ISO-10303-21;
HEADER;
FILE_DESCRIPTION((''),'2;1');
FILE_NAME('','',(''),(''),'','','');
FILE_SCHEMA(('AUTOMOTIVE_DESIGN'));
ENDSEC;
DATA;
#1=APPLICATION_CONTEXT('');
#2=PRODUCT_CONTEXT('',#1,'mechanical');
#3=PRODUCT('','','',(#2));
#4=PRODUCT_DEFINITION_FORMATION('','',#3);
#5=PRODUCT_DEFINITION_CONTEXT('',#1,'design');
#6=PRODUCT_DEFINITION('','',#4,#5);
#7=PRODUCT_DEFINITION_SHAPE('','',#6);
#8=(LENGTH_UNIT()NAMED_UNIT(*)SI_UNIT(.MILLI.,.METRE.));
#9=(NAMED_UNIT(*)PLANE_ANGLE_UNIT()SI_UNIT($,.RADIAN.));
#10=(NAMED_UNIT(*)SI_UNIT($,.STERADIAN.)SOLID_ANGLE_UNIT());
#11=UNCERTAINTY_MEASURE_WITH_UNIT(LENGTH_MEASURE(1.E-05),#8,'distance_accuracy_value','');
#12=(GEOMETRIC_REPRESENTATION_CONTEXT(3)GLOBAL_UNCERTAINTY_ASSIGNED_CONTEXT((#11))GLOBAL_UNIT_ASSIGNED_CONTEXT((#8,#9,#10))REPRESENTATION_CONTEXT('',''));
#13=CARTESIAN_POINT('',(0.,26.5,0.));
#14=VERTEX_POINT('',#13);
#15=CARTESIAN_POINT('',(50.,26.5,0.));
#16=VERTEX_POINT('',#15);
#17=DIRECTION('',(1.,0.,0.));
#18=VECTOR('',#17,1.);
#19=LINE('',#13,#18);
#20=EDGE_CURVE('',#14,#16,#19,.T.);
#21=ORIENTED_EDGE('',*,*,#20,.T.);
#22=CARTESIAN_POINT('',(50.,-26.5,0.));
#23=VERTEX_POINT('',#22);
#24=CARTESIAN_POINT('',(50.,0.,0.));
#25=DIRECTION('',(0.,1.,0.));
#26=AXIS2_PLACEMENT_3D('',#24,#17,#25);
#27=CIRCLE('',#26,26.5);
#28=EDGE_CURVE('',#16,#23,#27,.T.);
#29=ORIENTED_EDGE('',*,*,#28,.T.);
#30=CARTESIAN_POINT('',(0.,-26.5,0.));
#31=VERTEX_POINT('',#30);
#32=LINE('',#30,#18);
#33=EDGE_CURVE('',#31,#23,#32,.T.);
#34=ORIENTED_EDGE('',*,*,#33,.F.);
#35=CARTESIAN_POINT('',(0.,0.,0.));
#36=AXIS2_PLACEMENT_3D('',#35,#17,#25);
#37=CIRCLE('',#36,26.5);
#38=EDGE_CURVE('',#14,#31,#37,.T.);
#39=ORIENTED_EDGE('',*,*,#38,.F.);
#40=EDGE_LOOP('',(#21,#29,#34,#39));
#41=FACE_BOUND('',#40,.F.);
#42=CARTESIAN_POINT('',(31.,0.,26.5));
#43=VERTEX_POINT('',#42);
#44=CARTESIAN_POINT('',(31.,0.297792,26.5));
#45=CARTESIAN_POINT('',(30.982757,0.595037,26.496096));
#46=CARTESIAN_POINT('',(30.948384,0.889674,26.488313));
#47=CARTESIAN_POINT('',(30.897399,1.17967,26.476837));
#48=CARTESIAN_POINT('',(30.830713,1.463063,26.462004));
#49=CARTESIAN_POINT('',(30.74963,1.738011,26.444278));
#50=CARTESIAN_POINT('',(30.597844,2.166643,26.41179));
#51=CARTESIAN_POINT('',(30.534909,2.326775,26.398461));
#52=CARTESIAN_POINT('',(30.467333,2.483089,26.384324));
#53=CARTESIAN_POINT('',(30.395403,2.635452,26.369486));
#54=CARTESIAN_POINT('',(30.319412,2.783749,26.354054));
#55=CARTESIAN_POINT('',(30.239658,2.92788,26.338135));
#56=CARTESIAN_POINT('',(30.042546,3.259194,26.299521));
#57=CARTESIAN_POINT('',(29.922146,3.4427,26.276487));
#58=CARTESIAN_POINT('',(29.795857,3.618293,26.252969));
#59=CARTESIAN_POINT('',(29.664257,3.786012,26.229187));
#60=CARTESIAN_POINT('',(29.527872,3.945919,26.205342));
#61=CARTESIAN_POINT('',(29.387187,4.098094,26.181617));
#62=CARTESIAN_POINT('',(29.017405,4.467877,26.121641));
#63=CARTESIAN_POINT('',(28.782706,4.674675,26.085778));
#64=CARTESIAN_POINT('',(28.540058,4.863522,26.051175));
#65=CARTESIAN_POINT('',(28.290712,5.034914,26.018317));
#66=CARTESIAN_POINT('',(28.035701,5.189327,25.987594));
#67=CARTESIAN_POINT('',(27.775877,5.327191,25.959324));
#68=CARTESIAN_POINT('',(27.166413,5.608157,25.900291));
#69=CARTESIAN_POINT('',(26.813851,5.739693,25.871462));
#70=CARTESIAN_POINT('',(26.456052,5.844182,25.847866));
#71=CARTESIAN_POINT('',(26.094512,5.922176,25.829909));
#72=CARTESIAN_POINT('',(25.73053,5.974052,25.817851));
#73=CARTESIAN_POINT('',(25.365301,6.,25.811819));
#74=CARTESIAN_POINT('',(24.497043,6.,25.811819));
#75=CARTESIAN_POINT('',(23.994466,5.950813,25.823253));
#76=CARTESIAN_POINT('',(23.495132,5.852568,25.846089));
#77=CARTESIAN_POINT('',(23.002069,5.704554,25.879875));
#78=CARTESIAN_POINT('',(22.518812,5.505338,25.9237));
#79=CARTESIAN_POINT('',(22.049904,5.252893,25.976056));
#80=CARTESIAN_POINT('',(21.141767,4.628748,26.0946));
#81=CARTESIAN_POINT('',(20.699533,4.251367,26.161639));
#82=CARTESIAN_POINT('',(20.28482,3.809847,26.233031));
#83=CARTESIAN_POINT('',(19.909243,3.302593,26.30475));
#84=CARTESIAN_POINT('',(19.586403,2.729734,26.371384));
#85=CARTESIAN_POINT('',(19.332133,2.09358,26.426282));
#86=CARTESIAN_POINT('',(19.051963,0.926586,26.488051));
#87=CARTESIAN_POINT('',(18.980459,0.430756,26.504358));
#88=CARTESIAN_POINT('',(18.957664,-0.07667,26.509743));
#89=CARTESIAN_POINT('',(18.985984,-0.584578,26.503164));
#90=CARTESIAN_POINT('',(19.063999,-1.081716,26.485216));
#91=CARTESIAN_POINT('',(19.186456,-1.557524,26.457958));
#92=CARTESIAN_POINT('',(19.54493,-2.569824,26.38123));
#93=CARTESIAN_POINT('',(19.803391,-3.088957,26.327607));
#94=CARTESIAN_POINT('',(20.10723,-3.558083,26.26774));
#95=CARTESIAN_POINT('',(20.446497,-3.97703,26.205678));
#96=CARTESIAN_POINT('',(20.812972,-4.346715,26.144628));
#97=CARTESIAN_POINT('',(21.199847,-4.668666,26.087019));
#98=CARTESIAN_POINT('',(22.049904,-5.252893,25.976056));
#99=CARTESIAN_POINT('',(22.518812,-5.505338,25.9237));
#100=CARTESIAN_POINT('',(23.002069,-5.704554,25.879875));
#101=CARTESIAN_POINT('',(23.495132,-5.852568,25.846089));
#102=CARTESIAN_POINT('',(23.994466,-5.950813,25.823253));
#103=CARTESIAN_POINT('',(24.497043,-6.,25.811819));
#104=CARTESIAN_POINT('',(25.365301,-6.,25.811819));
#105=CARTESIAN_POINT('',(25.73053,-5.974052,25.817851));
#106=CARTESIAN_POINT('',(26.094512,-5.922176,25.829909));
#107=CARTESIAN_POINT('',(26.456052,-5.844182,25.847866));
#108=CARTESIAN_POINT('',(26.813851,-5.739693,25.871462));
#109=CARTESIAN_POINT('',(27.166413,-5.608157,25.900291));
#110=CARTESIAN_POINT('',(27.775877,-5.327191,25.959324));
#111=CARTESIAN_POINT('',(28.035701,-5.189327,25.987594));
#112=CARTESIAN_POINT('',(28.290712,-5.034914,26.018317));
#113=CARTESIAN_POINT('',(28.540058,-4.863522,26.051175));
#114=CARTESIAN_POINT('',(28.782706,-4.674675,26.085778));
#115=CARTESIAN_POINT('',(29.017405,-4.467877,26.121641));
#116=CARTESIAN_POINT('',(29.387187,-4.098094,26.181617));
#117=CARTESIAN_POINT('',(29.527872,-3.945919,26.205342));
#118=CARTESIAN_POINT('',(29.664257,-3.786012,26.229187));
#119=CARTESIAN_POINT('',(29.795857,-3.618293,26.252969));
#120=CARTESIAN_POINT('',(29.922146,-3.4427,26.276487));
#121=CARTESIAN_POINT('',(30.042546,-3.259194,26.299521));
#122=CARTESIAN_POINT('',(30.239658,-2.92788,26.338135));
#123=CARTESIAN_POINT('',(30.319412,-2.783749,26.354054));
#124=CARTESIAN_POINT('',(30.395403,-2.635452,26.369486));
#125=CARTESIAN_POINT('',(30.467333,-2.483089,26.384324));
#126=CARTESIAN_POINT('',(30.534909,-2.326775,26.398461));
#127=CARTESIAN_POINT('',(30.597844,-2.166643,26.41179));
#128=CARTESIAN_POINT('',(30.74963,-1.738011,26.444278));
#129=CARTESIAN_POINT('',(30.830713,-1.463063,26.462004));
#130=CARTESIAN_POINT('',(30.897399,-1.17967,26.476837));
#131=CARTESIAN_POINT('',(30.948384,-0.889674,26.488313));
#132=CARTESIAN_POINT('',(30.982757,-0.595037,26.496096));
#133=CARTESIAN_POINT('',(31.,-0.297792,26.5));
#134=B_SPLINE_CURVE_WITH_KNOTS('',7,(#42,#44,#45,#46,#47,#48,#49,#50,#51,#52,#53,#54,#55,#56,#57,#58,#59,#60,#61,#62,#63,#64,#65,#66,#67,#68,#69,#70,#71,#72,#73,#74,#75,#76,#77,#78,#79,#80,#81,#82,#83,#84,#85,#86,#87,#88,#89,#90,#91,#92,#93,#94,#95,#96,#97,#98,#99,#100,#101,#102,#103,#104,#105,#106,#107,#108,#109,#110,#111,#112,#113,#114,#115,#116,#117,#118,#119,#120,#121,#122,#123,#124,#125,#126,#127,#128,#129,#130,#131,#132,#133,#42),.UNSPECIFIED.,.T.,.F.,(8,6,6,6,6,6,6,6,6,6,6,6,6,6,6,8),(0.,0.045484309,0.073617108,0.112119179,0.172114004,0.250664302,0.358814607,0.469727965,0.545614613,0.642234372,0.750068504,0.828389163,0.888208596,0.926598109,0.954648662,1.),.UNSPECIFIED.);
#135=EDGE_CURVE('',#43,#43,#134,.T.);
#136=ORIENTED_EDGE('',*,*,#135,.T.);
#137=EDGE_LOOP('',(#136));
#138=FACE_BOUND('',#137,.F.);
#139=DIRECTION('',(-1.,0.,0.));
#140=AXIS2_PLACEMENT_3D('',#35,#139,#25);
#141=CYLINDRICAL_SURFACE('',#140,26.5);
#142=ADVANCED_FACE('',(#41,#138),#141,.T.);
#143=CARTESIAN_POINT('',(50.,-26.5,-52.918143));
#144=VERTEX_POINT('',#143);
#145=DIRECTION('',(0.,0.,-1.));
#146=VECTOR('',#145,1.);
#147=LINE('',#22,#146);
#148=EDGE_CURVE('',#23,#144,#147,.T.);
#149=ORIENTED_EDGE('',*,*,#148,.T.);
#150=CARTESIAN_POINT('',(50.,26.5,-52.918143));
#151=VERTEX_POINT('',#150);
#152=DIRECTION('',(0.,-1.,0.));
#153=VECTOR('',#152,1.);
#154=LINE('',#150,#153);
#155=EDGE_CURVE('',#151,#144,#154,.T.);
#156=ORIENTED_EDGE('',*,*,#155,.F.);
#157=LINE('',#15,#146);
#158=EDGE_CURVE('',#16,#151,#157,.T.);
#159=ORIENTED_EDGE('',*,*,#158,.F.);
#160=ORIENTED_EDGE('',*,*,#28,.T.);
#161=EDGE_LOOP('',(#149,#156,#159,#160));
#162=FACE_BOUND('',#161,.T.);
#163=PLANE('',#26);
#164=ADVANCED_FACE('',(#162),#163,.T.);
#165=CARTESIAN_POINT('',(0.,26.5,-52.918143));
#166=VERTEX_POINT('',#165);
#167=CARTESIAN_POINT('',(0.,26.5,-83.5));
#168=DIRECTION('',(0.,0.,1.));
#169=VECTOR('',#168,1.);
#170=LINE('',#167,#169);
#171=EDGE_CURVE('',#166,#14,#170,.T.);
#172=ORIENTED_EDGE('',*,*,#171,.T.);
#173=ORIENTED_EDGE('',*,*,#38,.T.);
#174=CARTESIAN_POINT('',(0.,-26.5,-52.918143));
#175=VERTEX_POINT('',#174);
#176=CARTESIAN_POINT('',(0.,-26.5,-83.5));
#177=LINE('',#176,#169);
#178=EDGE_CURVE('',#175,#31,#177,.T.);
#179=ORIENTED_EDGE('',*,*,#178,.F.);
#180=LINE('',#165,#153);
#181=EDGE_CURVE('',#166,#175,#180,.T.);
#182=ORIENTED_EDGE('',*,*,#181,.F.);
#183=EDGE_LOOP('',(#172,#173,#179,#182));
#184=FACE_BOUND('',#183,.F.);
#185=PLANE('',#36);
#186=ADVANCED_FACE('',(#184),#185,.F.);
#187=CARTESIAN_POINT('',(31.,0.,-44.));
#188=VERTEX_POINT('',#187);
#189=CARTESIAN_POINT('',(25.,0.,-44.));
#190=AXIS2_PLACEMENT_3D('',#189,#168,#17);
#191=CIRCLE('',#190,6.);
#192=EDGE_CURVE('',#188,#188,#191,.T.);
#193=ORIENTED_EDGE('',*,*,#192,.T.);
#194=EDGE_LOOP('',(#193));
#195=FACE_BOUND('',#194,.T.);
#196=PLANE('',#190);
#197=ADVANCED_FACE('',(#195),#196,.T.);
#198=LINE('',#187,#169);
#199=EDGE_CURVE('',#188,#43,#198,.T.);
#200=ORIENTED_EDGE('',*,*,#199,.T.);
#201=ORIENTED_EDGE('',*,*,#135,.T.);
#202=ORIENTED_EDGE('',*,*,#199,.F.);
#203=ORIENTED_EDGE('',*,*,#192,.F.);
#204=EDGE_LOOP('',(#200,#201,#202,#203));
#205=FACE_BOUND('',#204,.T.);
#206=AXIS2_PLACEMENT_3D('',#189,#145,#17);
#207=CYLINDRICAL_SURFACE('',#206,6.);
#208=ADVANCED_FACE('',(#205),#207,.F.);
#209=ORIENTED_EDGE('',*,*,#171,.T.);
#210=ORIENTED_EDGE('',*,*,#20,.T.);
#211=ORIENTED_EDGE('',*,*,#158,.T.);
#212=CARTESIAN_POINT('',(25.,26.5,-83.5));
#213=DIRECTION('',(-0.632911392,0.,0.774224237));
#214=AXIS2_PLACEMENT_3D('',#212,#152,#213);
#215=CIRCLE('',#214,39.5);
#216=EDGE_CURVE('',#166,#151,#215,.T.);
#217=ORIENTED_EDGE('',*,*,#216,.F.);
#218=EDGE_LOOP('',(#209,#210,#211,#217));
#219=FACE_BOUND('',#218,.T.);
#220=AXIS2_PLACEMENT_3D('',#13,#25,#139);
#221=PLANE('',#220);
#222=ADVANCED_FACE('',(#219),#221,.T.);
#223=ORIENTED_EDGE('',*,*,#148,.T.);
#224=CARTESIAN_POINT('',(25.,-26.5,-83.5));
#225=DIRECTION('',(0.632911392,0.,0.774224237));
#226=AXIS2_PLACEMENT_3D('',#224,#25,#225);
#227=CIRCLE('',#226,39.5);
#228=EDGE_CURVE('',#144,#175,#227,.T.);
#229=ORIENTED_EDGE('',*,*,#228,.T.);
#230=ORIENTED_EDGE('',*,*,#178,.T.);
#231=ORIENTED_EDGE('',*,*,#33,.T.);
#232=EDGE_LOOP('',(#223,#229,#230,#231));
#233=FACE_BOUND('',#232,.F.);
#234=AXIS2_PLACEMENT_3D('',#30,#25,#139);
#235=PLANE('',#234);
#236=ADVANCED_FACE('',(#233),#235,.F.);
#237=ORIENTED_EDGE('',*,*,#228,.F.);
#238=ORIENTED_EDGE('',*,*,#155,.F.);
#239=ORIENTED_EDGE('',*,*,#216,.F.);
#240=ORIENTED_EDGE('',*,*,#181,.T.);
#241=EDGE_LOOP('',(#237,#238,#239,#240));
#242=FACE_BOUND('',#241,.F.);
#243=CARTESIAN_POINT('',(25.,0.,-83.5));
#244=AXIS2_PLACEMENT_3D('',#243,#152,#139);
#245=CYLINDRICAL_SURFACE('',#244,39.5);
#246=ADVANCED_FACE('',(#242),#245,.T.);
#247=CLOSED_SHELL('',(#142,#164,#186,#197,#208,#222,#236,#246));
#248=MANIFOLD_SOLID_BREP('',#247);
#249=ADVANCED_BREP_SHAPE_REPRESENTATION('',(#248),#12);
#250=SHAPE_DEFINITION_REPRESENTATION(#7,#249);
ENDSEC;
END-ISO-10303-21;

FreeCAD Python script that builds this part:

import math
import FreeCAD as App
import Part
import Sketcher

doc = App.newDocument("Part")
body = doc.addObject("PartDesign::Body", "Body")

sketch1 = body.newObject("Sketcher::SketchObject", "Sketch")
sketch1.AttachmentSupport = (doc.getObject("XZ_Plane"), [""])
sketch1.MapMode = "FlatFace"
sketch1.addGeometry([
    Part.LineSegment(App.Vector(0, -52.918143, 0), App.Vector(0, 0, 0)),
    Part.LineSegment(App.Vector(0, 0, 0), App.Vector(50, 0, 0)),
    Part.LineSegment(App.Vector(50, 0, 0), App.Vector(50, -52.918143, 0)),
    Part.ArcOfCircle(Part.Circle(App.Vector(25, -83.5, 0), App.Vector(0, 0, 1), 39.5), math.radians(129.265248), math.radians(410.734752)),
], False)
sketch1.addConstraint([
    Sketcher.Constraint("Coincident", 0, 2, 1, 1),
    Sketcher.Constraint("Coincident", 1, 2, 2, 1),
    Sketcher.Constraint("Coincident", 2, 2, 3, 2),
    Sketcher.Constraint("Coincident", 3, 1, 0, 1),
    Sketcher.Constraint("Vertical", 0),
    Sketcher.Constraint("Horizontal", 1),
    Sketcher.Constraint("Vertical", 2),
    Sketcher.Constraint("Coincident", 0, 2, -1, 1),
    Sketcher.Constraint("Horizontal", 2, 2, 3, 1),
    Sketcher.Constraint("Radius", 3, 39.5),
    Sketcher.Constraint("DistanceX", 1, 1, 1, 2, 50.0),
    Sketcher.Constraint("DistanceY", 3, 3, -1, 1, 83.5),
])
pad1 = body.newObject("PartDesign::Pad", "Pad")
pad1.Profile = sketch1
pad1.Length = 53
pad1.Midplane = True

sketch2 = body.newObject("Sketcher::SketchObject", "Sketch001")
sketch2.AttachmentSupport = (doc.getObject("YZ_Plane"), [""])
sketch2.MapMode = "FlatFace"
sketch2.addGeometry([
    Part.LineSegment(App.Vector(-26.5, 0, 0), App.Vector(26.5, 0, 0)),
    Part.ArcOfCircle(Part.Circle(App.Vector(0, 0, 0), App.Vector(0, 0, 1), 26.5), math.radians(0), math.radians(180)),
], False)
sketch2.addConstraint([
    Sketcher.Constraint("Coincident", 0, 1, 1, 2),
    Sketcher.Constraint("Coincident", 1, 1, 0, 2),
    Sketcher.Constraint("Horizontal", 0),
    Sketcher.Constraint("Coincident", 1, 3, -1, 1),
    Sketcher.Constraint("PointOnObject", 0, 1, -1),
    Sketcher.Constraint("Radius", 1, 26.5),
])
pad2 = body.newObject("PartDesign::Pad", "Pad001")
pad2.Profile = sketch2
pad2.Length = 50

sketch3 = body.newObject("Sketcher::SketchObject", "Sketch002")
sketch3.AttachmentSupport = (doc.getObject("XY_Plane"), [""])
sketch3.MapMode = "FlatFace"
sketch3.AttachmentOffset = App.Placement(App.Vector(0, 0, -44), App.Rotation())
sketch3.addGeometry(Part.Circle(App.Vector(25, 0, 0), App.Vector(0, 0, 1), 6), False)
sketch3.addConstraint([
    Sketcher.Constraint("PointOnObject", 0, 3, -1),
    Sketcher.Constraint("Diameter", 0, 12.0),
    Sketcher.Constraint("DistanceX", -1, 1, 0, 3, 25.0),
])
pocket1 = body.newObject("PartDesign::Pocket", "Pocket")
pocket1.Profile = sketch3
pocket1.Type = "ThroughAll"
pocket1.Reversed = True

doc.recompute()
